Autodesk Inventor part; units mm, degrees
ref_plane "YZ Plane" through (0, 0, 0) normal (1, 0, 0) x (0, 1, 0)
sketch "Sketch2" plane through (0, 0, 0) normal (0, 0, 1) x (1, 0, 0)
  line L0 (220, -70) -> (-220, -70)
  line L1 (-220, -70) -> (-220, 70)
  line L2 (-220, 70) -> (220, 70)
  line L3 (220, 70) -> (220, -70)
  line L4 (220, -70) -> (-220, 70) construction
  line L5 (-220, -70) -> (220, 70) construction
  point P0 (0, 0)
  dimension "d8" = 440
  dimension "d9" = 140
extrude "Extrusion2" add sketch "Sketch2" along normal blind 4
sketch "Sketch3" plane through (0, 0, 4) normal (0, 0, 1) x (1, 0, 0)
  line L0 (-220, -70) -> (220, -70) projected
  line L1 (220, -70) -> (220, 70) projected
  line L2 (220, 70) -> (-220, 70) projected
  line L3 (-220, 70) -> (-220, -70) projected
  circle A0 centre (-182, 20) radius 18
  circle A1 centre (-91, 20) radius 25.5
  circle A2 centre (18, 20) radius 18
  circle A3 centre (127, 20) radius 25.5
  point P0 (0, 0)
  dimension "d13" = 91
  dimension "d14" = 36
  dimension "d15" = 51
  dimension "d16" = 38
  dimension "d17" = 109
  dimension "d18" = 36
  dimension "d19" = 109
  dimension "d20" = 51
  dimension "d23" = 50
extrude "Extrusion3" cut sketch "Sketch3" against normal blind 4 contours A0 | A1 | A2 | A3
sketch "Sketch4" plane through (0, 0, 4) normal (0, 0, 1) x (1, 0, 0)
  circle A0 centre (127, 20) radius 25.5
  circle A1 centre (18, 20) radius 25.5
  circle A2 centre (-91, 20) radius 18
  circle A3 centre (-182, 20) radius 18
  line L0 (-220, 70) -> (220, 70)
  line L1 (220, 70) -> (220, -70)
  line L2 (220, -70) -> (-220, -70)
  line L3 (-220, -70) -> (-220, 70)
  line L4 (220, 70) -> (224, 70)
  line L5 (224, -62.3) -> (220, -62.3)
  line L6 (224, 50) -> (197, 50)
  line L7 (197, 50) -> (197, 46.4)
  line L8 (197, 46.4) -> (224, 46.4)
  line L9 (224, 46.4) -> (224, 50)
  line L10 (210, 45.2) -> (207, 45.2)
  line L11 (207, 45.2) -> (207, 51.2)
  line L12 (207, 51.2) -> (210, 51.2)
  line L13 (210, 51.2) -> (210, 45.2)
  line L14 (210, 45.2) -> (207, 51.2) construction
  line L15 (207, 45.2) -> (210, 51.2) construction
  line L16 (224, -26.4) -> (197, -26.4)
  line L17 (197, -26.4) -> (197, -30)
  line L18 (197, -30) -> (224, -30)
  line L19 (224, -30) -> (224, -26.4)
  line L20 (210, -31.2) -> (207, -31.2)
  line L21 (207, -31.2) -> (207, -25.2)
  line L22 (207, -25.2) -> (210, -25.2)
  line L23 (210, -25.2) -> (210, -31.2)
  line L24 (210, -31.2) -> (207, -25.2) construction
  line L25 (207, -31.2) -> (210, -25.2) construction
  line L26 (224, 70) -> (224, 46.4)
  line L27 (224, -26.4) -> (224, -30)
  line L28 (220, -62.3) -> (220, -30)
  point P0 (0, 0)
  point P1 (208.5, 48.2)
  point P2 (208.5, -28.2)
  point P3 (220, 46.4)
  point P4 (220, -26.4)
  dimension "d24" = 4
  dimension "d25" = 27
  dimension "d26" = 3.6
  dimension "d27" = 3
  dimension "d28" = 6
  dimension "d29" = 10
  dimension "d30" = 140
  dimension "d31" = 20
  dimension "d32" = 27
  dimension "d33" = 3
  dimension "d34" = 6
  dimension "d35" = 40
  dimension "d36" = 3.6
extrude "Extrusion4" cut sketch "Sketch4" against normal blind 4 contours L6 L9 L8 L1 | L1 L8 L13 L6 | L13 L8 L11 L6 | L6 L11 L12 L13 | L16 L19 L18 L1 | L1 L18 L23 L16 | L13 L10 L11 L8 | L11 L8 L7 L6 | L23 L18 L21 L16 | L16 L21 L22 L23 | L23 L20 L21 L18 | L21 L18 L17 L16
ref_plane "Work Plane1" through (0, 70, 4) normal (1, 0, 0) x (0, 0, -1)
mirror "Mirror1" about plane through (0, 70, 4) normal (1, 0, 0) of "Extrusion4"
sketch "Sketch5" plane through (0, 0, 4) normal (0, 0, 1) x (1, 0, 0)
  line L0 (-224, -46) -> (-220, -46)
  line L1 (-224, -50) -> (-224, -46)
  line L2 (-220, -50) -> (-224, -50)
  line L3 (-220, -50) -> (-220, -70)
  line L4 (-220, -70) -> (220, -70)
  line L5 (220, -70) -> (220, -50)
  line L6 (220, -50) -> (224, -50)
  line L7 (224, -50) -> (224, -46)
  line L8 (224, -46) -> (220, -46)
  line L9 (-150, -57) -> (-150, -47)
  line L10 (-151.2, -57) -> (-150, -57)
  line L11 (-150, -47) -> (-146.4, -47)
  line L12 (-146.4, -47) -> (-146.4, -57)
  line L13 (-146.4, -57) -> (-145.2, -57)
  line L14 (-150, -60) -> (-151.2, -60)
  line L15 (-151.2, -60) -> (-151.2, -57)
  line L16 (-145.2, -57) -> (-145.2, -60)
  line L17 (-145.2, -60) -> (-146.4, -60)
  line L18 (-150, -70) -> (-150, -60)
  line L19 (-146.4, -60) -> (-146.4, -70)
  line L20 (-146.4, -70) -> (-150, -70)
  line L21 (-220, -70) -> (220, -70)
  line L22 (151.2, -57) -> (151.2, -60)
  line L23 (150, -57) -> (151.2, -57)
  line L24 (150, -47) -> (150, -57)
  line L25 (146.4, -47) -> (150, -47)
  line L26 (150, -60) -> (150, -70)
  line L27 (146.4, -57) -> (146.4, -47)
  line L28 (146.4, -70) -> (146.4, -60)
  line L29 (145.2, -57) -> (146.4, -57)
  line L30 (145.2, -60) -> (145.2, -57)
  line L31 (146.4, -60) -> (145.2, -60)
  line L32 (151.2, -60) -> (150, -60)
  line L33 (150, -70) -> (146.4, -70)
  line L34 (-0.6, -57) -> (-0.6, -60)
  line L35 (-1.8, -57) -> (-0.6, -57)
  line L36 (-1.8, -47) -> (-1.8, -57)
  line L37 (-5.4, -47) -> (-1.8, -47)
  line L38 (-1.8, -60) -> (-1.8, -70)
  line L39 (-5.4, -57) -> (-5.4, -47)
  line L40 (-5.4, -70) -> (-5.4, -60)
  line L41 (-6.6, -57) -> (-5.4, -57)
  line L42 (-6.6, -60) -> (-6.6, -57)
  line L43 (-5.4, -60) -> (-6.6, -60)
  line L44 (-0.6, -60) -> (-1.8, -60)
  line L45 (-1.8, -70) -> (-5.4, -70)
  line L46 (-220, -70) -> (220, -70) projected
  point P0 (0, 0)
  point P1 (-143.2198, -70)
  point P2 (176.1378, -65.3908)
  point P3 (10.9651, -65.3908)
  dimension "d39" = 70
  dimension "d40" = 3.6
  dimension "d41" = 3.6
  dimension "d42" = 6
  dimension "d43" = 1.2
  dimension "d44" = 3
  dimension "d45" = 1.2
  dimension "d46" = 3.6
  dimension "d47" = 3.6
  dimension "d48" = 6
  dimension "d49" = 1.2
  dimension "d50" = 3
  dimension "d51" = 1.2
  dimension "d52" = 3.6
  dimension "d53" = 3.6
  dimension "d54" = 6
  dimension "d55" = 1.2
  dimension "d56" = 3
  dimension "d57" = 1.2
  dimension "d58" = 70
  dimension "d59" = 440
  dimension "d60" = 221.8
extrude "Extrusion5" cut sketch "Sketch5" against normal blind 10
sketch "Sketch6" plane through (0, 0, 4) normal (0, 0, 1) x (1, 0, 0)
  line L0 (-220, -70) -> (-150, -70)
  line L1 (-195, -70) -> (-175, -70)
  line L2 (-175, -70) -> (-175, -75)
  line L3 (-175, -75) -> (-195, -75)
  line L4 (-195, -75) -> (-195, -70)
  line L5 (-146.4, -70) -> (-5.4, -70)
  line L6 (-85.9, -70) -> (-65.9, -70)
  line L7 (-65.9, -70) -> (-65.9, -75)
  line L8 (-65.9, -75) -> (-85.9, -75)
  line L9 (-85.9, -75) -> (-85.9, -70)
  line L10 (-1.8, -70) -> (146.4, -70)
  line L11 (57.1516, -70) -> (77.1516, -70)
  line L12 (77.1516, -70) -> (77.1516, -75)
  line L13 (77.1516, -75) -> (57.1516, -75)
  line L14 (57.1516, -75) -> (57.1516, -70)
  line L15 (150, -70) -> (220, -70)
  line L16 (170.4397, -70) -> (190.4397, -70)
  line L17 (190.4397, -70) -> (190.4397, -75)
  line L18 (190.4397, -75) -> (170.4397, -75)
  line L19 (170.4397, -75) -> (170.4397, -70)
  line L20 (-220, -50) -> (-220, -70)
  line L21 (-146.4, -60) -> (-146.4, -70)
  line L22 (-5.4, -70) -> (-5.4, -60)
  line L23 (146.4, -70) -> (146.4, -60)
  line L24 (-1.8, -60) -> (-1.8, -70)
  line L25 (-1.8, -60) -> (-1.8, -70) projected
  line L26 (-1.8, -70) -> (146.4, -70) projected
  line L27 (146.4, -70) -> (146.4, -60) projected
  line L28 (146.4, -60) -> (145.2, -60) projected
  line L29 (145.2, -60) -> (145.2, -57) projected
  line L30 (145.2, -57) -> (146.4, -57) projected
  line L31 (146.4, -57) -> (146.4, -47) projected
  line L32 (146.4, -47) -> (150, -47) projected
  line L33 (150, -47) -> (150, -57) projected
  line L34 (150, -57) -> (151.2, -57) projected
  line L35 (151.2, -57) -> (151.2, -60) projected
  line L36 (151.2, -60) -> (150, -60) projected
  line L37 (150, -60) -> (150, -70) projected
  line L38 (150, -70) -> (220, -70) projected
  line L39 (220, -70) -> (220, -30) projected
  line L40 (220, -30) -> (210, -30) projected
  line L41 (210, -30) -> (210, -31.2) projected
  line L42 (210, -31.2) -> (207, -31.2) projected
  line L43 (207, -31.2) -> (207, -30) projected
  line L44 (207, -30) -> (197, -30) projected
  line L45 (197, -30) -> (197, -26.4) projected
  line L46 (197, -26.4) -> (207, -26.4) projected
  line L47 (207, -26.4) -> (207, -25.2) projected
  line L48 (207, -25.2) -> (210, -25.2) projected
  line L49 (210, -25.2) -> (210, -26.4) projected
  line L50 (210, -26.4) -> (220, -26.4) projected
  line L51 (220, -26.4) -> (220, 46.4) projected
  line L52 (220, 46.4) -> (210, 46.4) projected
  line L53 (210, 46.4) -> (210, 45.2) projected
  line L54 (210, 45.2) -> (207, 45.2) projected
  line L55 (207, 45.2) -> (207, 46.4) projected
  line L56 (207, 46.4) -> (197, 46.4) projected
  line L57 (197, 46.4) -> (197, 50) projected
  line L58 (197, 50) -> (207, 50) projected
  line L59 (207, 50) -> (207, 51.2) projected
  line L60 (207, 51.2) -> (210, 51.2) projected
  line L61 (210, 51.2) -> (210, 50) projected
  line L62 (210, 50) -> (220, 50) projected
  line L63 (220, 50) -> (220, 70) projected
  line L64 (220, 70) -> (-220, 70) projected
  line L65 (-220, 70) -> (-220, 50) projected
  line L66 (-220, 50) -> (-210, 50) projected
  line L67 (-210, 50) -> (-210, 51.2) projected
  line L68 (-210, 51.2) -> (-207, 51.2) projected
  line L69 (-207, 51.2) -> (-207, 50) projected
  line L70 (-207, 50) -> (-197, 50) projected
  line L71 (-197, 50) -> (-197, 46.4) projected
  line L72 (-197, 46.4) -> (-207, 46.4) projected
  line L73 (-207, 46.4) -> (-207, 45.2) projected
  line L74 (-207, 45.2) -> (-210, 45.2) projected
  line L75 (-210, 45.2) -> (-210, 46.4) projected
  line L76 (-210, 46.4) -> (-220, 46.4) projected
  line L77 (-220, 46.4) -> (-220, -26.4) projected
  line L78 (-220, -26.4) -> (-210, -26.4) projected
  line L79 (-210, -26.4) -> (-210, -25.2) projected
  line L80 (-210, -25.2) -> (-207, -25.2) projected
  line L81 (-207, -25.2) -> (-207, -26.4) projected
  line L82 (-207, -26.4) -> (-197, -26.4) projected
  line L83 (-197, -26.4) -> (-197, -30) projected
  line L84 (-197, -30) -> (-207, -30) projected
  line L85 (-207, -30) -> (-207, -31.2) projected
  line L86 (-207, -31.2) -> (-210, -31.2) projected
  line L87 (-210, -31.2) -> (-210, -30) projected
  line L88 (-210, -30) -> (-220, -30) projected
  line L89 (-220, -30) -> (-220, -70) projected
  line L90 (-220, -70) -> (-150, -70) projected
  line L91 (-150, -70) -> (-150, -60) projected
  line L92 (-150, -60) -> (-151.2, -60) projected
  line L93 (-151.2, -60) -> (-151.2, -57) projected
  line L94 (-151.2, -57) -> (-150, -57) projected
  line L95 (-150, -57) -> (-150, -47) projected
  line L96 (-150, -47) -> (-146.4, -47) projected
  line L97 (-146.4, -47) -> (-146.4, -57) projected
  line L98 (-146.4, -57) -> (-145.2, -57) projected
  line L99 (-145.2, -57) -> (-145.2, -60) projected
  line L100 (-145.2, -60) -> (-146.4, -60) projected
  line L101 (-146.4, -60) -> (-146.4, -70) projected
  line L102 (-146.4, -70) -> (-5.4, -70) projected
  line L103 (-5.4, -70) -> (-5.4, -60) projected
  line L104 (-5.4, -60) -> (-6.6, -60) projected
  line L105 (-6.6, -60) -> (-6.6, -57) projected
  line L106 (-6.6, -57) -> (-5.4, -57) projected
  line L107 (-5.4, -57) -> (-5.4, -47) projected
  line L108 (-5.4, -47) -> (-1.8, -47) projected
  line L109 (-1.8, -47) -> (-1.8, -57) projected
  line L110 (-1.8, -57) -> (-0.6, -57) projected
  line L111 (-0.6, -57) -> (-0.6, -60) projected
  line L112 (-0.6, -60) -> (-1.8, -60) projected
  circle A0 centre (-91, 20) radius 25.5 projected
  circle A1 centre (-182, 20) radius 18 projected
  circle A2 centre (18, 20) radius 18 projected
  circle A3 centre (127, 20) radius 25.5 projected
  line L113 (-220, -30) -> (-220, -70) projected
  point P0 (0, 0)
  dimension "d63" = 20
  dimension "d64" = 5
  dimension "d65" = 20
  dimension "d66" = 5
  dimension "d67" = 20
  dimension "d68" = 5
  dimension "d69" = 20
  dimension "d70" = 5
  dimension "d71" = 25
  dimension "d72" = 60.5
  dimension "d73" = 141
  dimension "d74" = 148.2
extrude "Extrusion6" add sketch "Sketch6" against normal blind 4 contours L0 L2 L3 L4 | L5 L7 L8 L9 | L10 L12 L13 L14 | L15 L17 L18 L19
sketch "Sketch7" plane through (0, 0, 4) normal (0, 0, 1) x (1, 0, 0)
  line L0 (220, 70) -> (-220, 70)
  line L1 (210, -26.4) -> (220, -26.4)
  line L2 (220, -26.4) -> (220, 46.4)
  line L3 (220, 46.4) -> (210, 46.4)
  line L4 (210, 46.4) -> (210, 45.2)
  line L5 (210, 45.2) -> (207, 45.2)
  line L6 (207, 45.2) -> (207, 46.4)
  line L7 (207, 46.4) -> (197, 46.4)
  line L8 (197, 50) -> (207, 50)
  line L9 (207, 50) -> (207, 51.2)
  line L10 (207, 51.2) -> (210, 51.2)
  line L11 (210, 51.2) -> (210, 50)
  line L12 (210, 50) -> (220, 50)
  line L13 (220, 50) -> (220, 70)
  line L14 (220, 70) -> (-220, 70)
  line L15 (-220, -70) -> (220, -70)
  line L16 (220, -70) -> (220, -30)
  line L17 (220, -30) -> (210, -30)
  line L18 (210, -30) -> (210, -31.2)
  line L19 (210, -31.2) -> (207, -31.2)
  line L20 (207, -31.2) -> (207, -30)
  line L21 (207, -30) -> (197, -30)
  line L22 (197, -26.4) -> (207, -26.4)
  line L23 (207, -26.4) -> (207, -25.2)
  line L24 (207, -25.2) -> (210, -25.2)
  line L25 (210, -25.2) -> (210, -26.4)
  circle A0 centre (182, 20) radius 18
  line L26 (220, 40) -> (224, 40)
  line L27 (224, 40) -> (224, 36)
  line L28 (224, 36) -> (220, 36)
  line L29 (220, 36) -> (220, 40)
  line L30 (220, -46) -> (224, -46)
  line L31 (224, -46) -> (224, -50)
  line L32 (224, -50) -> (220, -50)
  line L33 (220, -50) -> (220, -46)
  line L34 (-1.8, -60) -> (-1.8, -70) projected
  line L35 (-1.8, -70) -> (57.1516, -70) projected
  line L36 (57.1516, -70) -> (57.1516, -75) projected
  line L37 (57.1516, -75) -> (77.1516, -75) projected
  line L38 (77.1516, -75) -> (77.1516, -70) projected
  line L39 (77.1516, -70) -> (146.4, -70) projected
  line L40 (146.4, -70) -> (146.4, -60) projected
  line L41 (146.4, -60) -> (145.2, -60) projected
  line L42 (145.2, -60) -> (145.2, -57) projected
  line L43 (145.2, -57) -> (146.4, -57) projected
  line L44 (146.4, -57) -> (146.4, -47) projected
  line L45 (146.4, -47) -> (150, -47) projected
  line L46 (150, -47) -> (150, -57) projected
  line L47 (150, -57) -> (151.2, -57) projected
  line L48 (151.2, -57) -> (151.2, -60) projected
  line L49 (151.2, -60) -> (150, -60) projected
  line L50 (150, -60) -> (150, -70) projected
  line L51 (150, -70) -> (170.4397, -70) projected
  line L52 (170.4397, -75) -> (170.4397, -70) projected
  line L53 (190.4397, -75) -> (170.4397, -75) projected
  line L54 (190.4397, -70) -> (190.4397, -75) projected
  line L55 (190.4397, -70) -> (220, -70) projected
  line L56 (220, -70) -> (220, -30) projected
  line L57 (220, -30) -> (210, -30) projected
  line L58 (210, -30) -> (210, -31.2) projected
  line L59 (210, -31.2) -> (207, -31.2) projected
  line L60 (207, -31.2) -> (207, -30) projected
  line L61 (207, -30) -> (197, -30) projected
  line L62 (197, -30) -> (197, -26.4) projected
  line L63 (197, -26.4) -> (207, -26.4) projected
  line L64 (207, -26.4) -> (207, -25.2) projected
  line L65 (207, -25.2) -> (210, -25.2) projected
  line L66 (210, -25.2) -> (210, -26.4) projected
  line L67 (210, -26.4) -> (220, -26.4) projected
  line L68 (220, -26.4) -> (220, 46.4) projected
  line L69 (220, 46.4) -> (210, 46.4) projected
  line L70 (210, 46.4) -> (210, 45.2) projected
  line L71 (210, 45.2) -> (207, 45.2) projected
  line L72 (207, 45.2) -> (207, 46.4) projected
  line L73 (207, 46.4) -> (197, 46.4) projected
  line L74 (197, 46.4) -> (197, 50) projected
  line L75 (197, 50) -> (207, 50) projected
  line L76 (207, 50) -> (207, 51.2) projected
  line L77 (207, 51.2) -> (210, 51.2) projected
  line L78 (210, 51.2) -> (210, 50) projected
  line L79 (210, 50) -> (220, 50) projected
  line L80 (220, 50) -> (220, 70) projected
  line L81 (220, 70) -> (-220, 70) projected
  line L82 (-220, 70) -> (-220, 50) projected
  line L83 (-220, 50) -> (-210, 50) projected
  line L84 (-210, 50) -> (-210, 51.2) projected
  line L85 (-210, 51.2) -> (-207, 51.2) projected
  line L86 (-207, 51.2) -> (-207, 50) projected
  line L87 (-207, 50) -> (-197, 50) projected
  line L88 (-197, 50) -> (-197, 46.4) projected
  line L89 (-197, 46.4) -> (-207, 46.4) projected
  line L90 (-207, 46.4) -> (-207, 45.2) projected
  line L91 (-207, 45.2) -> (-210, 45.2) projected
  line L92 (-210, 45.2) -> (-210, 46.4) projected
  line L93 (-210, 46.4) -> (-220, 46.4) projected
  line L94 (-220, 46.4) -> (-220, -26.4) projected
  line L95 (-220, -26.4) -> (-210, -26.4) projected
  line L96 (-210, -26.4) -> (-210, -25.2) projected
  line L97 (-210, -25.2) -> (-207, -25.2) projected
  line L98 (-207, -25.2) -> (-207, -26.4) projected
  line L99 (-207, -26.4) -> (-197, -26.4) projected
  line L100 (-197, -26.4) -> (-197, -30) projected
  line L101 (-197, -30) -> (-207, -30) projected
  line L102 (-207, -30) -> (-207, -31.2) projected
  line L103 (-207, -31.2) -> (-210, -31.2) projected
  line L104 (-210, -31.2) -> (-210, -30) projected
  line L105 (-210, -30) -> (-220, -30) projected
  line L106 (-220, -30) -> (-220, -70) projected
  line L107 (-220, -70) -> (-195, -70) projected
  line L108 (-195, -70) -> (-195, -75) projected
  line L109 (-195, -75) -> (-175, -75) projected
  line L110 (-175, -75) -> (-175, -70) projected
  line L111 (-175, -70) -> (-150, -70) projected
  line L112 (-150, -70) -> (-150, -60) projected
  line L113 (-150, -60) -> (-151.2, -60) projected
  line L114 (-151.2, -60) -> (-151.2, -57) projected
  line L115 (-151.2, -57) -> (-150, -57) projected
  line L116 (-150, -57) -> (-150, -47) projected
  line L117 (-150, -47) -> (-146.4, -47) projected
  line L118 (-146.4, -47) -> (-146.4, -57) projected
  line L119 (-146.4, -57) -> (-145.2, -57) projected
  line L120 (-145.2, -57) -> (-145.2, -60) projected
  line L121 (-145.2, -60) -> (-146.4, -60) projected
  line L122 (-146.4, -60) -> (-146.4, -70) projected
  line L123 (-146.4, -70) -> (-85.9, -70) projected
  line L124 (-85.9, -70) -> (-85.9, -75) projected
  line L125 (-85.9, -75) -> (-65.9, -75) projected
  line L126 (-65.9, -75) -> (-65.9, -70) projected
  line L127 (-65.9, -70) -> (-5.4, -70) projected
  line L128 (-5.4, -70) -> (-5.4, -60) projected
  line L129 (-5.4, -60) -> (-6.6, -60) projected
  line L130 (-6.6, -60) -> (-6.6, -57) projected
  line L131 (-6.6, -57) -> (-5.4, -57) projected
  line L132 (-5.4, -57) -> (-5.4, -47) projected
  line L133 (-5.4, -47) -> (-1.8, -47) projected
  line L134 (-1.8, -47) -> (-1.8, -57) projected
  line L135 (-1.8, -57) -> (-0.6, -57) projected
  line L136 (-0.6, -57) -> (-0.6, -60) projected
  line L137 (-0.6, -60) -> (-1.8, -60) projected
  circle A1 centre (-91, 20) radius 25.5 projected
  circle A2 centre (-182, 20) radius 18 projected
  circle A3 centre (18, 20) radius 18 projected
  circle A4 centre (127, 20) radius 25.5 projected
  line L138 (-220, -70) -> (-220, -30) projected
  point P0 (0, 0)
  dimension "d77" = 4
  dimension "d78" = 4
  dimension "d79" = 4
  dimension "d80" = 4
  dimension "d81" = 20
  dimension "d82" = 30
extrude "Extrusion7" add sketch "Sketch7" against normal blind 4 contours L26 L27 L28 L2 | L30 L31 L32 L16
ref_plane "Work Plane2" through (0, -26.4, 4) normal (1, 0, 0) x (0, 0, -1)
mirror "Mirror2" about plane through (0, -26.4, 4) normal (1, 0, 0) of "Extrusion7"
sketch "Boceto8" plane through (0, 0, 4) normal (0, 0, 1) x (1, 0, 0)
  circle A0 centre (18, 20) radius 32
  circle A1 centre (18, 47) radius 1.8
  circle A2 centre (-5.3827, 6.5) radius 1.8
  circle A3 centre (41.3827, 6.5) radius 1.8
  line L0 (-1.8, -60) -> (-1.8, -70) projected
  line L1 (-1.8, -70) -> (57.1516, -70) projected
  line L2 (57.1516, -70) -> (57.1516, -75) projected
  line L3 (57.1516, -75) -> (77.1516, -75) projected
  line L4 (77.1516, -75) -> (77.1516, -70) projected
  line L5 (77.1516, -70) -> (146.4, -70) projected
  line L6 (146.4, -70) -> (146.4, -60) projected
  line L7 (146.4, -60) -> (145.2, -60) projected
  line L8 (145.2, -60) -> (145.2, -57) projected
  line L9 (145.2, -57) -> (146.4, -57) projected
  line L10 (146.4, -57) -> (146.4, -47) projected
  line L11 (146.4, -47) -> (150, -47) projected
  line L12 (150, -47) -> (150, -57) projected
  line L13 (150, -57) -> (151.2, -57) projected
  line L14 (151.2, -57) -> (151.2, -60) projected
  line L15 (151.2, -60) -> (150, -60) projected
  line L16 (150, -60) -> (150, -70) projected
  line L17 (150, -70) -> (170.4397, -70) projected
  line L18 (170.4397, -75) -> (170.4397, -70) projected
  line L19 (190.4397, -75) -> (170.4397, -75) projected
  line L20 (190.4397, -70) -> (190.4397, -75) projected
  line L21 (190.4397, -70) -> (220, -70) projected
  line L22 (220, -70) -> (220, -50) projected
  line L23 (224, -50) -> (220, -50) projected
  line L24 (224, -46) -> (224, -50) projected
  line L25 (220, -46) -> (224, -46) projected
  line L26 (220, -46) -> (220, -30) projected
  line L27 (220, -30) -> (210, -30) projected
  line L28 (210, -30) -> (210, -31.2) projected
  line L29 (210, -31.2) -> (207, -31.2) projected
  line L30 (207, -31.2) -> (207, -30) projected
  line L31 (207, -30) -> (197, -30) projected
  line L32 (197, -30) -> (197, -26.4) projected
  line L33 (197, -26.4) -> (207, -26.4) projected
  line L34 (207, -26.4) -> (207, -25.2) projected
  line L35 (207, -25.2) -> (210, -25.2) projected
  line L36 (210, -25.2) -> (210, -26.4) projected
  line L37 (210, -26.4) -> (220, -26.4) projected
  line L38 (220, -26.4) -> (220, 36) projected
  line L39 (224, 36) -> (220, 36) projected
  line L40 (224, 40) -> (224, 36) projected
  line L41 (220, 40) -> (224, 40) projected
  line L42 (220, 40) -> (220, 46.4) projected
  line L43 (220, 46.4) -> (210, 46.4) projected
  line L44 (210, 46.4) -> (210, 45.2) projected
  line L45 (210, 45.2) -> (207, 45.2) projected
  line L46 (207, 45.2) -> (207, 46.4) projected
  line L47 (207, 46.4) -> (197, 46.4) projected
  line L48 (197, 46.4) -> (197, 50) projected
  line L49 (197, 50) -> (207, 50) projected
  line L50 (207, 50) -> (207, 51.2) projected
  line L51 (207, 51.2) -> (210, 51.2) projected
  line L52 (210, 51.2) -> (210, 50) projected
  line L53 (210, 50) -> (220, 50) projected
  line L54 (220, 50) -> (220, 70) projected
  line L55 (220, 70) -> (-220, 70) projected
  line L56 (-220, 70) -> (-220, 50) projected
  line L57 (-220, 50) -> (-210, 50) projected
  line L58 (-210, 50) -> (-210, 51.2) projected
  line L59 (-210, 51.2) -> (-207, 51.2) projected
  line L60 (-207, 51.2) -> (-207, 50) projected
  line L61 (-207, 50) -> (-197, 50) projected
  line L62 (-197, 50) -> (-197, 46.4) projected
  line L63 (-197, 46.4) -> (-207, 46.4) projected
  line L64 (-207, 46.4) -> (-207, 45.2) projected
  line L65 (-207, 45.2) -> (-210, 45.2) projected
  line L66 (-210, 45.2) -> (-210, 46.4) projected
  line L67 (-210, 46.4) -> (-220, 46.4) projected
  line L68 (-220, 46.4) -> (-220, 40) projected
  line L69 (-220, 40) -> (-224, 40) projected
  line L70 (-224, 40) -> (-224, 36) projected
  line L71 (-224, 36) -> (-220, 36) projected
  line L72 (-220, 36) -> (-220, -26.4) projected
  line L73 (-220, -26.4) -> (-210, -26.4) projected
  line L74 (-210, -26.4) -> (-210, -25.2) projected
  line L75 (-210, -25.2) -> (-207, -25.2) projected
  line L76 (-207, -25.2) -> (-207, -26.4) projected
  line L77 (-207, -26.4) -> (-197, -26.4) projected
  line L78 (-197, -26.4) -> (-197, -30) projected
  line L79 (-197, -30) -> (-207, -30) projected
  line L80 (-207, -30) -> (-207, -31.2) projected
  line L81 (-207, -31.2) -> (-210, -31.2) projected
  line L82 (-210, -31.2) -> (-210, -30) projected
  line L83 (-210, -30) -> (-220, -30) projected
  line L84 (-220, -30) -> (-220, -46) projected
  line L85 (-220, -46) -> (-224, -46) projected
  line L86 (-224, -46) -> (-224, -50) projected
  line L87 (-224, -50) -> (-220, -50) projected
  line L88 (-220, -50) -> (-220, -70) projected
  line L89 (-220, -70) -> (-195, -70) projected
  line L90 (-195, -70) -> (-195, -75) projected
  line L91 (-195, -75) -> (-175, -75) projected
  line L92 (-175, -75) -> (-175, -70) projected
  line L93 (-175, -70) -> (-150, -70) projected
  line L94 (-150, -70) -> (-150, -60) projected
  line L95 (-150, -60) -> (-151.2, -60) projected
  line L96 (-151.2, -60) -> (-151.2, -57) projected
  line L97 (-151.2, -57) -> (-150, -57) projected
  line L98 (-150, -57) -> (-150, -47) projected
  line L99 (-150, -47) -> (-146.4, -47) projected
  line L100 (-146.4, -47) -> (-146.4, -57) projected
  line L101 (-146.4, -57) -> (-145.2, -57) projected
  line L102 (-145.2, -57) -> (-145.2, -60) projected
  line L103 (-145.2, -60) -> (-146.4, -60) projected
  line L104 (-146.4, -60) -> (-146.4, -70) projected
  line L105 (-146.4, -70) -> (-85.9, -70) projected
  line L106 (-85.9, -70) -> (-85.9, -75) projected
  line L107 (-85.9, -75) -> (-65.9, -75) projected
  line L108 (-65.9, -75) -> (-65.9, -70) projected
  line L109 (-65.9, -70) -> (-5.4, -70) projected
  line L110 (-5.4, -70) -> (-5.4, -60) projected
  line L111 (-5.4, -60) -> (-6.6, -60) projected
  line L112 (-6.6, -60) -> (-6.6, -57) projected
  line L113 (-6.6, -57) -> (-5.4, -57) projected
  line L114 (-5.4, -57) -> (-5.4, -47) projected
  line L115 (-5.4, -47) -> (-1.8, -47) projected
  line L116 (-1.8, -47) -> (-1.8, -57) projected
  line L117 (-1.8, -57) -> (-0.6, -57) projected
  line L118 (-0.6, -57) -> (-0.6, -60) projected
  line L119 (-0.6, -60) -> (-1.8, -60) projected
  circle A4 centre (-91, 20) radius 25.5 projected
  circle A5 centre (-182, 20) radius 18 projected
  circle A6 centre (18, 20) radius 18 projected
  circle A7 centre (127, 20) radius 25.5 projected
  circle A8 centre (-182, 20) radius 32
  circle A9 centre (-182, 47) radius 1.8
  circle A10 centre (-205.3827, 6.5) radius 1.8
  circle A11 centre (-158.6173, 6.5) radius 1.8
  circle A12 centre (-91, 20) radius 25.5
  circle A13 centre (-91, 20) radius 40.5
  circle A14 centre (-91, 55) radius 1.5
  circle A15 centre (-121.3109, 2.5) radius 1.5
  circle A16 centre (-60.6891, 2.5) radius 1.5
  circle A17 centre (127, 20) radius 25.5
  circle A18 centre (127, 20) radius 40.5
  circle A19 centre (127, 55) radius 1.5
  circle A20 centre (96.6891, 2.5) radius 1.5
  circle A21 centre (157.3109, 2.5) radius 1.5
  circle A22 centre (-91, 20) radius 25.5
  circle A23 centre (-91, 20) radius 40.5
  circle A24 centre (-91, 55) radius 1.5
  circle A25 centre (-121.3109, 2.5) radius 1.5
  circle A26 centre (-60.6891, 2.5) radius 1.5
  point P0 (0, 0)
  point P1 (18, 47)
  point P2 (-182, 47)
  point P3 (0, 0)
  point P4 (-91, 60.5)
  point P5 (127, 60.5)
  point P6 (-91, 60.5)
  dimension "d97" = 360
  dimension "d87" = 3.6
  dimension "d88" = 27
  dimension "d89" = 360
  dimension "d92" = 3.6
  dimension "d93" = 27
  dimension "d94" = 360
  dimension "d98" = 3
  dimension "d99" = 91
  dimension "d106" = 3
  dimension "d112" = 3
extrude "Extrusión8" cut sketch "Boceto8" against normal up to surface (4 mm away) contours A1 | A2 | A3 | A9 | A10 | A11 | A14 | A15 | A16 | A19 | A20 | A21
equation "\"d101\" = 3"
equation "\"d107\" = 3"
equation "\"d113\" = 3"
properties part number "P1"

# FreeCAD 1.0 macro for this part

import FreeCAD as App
import Part
import Sketcher
from FreeCAD import Vector
Q = App.Units.Quantity


def add_polygon(sketch, points):
    """Adds a closed chain of lines whose ends are joined by coincident constraints."""
    first, n = sketch.GeometryCount, len(points)
    for a, b in zip(points, points[1:] + points[:1]):
        sketch.addGeometry(Part.LineSegment(App.Vector(*a, 0), App.Vector(*b, 0)), False)
    for i in range(n):
        sketch.addConstraint(Sketcher.Constraint("Coincident", first + i, 2, first + (i + 1) % n, 1))

doc = App.newDocument("Part")
params = doc.addObject("Spreadsheet::Sheet", "Params")
for row, (alias, value) in enumerate([
    ("sketch1_width", "440 mm"),
    ("sketch1_height", "140 mm"),
    ("pad1_length", "4 mm"),
    ("sketch2_diameter", "36 mm"),
    ("sketch2_diameter2", "51 mm"),
    ("pocket1_length", "4 mm"),
    ("sketch3_width", "3 mm"),
    ("sketch3_width2", "10 mm"),
    ("sketch3_height", "3.6 mm"),
    ("sketch3_width3", "14 mm"),
    ("pocket2_length", "4 mm"),
    ("sketch4_height", "3 mm"),
    ("sketch4_width", "3.6 mm"),
    ("sketch4_width2", "1.2 mm"),
    ("sketch4_height2", "10 mm"),
    ("pocket3_length", "10 mm"),
    ("sketch5_width", "20 mm"),
    ("sketch5_height", "5 mm"),
    ("pad2_length", "4 mm"),
    ("sketch6_width", "4 mm"),
    ("pad3_length", "4 mm"),
    ("sketch7_diameter", "3 mm"),
    ("sketch7_diameter2", "3.6 mm"),
    ("pocket4_length", "4 mm"),
], start=1):
    params.set(f"A{row}", alias)
    params.set(f"B{row}", "=" + value)
    params.setAlias(f"B{row}", alias)

body = doc.addObject("PartDesign::Body", "Body")

sketch1 = body.newObject("Sketcher::SketchObject", "Sketch")
sketch1.AttachmentSupport = (doc.getObject("XY_Plane"), [""])
sketch1.MapMode = "FlatFace"
add_polygon(sketch1, [(-220, -70), (220, -70), (220, 70), (-220, 70)])
sketch1.addConstraint([
    Sketcher.Constraint("Horizontal", 0),
    Sketcher.Constraint("Vertical", 1),
    Sketcher.Constraint("Horizontal", 2),
    Sketcher.Constraint("Vertical", 3),
    Sketcher.Constraint("Symmetric", 0, 2, 2, 2, -1, 1),
    Sketcher.Constraint("DistanceX", 0, 1, 0, 2, Q("440 mm")),
    Sketcher.Constraint("DistanceY", 1, 1, 1, 2, Q("140 mm")),
])
sketch1.setExpression("Constraints[9]", "Params.sketch1_width")
sketch1.setExpression("Constraints[10]", "Params.sketch1_height")
pad1 = body.newObject("PartDesign::Pad", "Pad")
pad1.Profile = sketch1
pad1.setExpression("Length", "Params.pad1_length")

sketch2 = body.newObject("Sketcher::SketchObject", "Sketch001")
sketch2.AttachmentSupport = (doc.getObject("XY_Plane"), [""])
sketch2.MapMode = "FlatFace"
sketch2.AttachmentOffset = App.Placement(Vector(0, 0, 4), App.Rotation())
sketch2.addGeometry([
    Part.Circle(Vector(-182, 20, 0), Vector(0, 0, 1), 18),
    Part.Circle(Vector(-91, 20, 0), Vector(0, 0, 1), 26),
    Part.Circle(Vector(18, 20, 0), Vector(0, 0, 1), 18),
    Part.Circle(Vector(127, 20, 0), Vector(0, 0, 1), 26),
], False)
sketch2.addConstraint([
    Sketcher.Constraint("Equal", 0, 2),
    Sketcher.Constraint("Equal", 1, 3),
    Sketcher.Constraint("Horizontal", 0, 3, 1, 3),
    Sketcher.Constraint("Horizontal", 1, 3, 2, 3),
    Sketcher.Constraint("Horizontal", 2, 3, 3, 3),
    Sketcher.Constraint("Diameter", 0, Q("36 mm")),
    Sketcher.Constraint("Diameter", 1, Q("51 mm")),
    Sketcher.Constraint("DistanceX", 1, 3, -1, 1, Q("91 mm")),
    Sketcher.Constraint("DistanceX", 0, 3, 1, 3, Q("91 mm")),
    Sketcher.Constraint("DistanceX", 1, 3, 2, 3, Q("109 mm")),
    Sketcher.Constraint("DistanceX", 2, 3, 3, 3, Q("109 mm")),
    Sketcher.Constraint("DistanceY", -1, 1, 0, 3, Q("20 mm")),
])
sketch2.setExpression("Constraints[5]", "Params.sketch2_diameter")
sketch2.setExpression("Constraints[6]", "Params.sketch2_diameter2")
pocket1 = body.newObject("PartDesign::Pocket", "Pocket")
pocket1.Profile = sketch2
pocket1.setExpression("Length", "Params.pocket1_length")

sketch3 = body.newObject("Sketcher::SketchObject", "Sketch002")
sketch3.AttachmentSupport = (doc.getObject("XY_Plane"), [""])
sketch3.MapMode = "FlatFace"
sketch3.AttachmentOffset = App.Placement(Vector(0, 0, 4), App.Rotation())
add_polygon(sketch3, [(224, 50), (210, 50), (210, 51.2), (207, 51.2), (207, 50), (197, 50), (197, 46.4), (207, 46.4), (207, 45.2), (210, 45.2), (210, 46.4), (224, 46.4)])
add_polygon(sketch3, [(224, -26.4), (210, -26.4), (210, -25.2), (207, -25.2), (207, -26.4), (197, -26.4), (197, -30), (207, -30), (207, -31.2), (210, -31.2), (210, -30), (224, -30)])
sketch3.addConstraint([
    Sketcher.Constraint("Horizontal", 0),
    Sketcher.Constraint("Vertical", 1),
    Sketcher.Constraint("Horizontal", 2),
    Sketcher.Constraint("Vertical", 3),
    Sketcher.Constraint("Horizontal", 4),
    Sketcher.Constraint("Vertical", 5),
    Sketcher.Constraint("Horizontal", 6),
    Sketcher.Constraint("Vertical", 7),
    Sketcher.Constraint("Horizontal", 8),
    Sketcher.Constraint("Vertical", 9),
    Sketcher.Constraint("Horizontal", 10),
    Sketcher.Constraint("Vertical", 11),
    Sketcher.Constraint("Horizontal", 12),
    Sketcher.Constraint("Vertical", 13),
    Sketcher.Constraint("Horizontal", 14),
    Sketcher.Constraint("Vertical", 15),
    Sketcher.Constraint("Horizontal", 16),
    Sketcher.Constraint("Vertical", 17),
    Sketcher.Constraint("Horizontal", 18),
    Sketcher.Constraint("Vertical", 19),
    Sketcher.Constraint("Horizontal", 20),
    Sketcher.Constraint("Vertical", 21),
    Sketcher.Constraint("Horizontal", 22),
    Sketcher.Constraint("Vertical", 23),
    Sketcher.Constraint("Horizontal", 0, 2, 3, 2),
    Sketcher.Constraint("Horizontal", 6, 2, 9, 2),
    Sketcher.Constraint("Horizontal", 12, 2, 15, 2),
    Sketcher.Constraint("Horizontal", 18, 2, 21, 2),
    Sketcher.Constraint("Vertical", 3, 2, 6, 2),
    Sketcher.Constraint("Vertical", 1, 2, 8, 2),
    Sketcher.Constraint("Vertical", 9, 2, 12, 2),
    Sketcher.Constraint("Vertical", 7, 2, 14, 2),
    Sketcher.Constraint("Vertical", 5, 2, 16, 2),
    Sketcher.Constraint("Vertical", 15, 2, 18, 2),
    Sketcher.Constraint("Vertical", 13, 2, 20, 2),
    Sketcher.Constraint("Vertical", 11, 2, 22, 2),
    Sketcher.Constraint("Equal", 3, 7),
    Sketcher.Constraint("Equal", 9, 13),
    Sketcher.Constraint("Equal", 11, 17),
    Sketcher.Constraint("Equal", 15, 19),
    Sketcher.Constraint("DistanceX", 2, 2, 2, 1, Q("3 mm")),
    Sketcher.Constraint("DistanceX", 4, 2, 4, 1, Q("10 mm")),
    Sketcher.Constraint("DistanceY", 5, 2, 5, 1, Q("3.6 mm")),
    Sketcher.Constraint("DistanceY", 7, 2, 2, 2, Q("6 mm")),
    Sketcher.Constraint("DistanceX", 0, 2, 0, 1, Q("14 mm")),
    Sketcher.Constraint("DistanceX", -1, 1, 0, 2, Q("210 mm")),
    Sketcher.Constraint("DistanceY", -1, 1, 0, 2, Q("50 mm")),
    Sketcher.Constraint("DistanceY", 17, 2, -1, 1, Q("30 mm")),
])
sketch3.setExpression("Constraints[64]", "Params.sketch3_width")
sketch3.setExpression("Constraints[65]", "Params.sketch3_width2")
sketch3.setExpression("Constraints[66]", "Params.sketch3_height")
sketch3.setExpression("Constraints[68]", "Params.sketch3_width3")
pocket2 = body.newObject("PartDesign::Pocket", "Pocket001")
pocket2.Profile = sketch3
pocket2.setExpression("Length", "Params.pocket2_length")
doc.recompute()

mirrored = body.newObject("PartDesign::Mirrored", "Mirrored")
mirrored.Originals = [pocket2]
mirrored.MirrorPlane = (doc.getObject("YZ_Plane"), [""])
body.Tip = mirrored

sketch4 = body.newObject("Sketcher::SketchObject", "Sketch003")
sketch4.AttachmentSupport = (doc.getObject("XY_Plane"), [""])
sketch4.MapMode = "FlatFace"
sketch4.AttachmentOffset = App.Placement(Vector(0, 0, 4), App.Rotation())
add_polygon(sketch4, [(-150, -60), (-150, -70), (-146.4, -70), (-146.4, -60), (-145.2, -60), (-145.2, -57), (-146.4, -57), (-146.4, -47), (-150, -47), (-150, -57), (-151.2, -57), (-151.2, -60)])
add_polygon(sketch4, [(146.4, -60), (146.4, -70), (150, -70), (150, -60), (151.2, -60), (151.2, -57), (150, -57), (150, -47), (146.4, -47), (146.4, -57), (145.2, -57), (145.2, -60)])
add_polygon(sketch4, [(-5.4, -60), (-5.4, -70), (-1.8, -70), (-1.8, -60), (-0.6, -60), (-0.6, -57), (-1.8, -57), (-1.8, -47), (-5.4, -47), (-5.4, -57), (-6.6, -57), (-6.6, -60)])
sketch4.addConstraint([
    Sketcher.Constraint("Vertical", 0),
    Sketcher.Constraint("Horizontal", 1),
    Sketcher.Constraint("Vertical", 2),
    Sketcher.Constraint("Horizontal", 3),
    Sketcher.Constraint("Vertical", 4),
    Sketcher.Constraint("Horizontal", 5),
    Sketcher.Constraint("Vertical", 6),
    Sketcher.Constraint("Horizontal", 7),
    Sketcher.Constraint("Vertical", 8),
    Sketcher.Constraint("Horizontal", 9),
    Sketcher.Constraint("Vertical", 10),
    Sketcher.Constraint("Horizontal", 11),
    Sketcher.Constraint("Vertical", 12),
    Sketcher.Constraint("Horizontal", 13),
    Sketcher.Constraint("Vertical", 14),
    Sketcher.Constraint("Horizontal", 15),
    Sketcher.Constraint("Vertical", 16),
    Sketcher.Constraint("Horizontal", 17),
    Sketcher.Constraint("Vertical", 18),
    Sketcher.Constraint("Horizontal", 19),
    Sketcher.Constraint("Vertical", 20),
    Sketcher.Constraint("Horizontal", 21),
    Sketcher.Constraint("Vertical", 22),
    Sketcher.Constraint("Horizontal", 23),
    Sketcher.Constraint("Vertical", 24),
    Sketcher.Constraint("Horizontal", 25),
    Sketcher.Constraint("Vertical", 26),
    Sketcher.Constraint("Horizontal", 27),
    Sketcher.Constraint("Vertical", 28),
    Sketcher.Constraint("Horizontal", 29),
    Sketcher.Constraint("Vertical", 30),
    Sketcher.Constraint("Horizontal", 31),
    Sketcher.Constraint("Vertical", 32),
    Sketcher.Constraint("Horizontal", 33),
    Sketcher.Constraint("Vertical", 34),
    Sketcher.Constraint("Horizontal", 35),
    Sketcher.Constraint("Symmetric", 1, 2, 12, 2, -2),
    Sketcher.Constraint("Symmetric", 11, 2, 14, 2, -2),
    Sketcher.Constraint("Symmetric", 9, 2, 16, 2, -2),
    Sketcher.Constraint("Symmetric", 7, 2, 18, 2, -2),
    Sketcher.Constraint("Symmetric", 5, 2, 20, 2, -2),
    Sketcher.Constraint("Symmetric", 3, 2, 22, 2, -2),
    Sketcher.Constraint("Horizontal", 5, 2, 8, 2),
    Sketcher.Constraint("Horizontal", 3, 2, 10, 2),
    Sketcher.Constraint("Horizontal", 13, 2, 24, 2),
    Sketcher.Constraint("Horizontal", 23, 2, 26, 2),
    Sketcher.Constraint("Horizontal", 21, 2, 28, 2),
    Sketcher.Constraint("Horizontal", 19, 2, 30, 2),
    Sketcher.Constraint("Horizontal", 29, 2, 32, 2),
    Sketcher.Constraint("Horizontal", 27, 2, 34, 2),
    Sketcher.Constraint("Vertical", 2, 2, 5, 2),
    Sketcher.Constraint("Vertical", 0, 2, 7, 2),
    Sketcher.Constraint("Vertical", 26, 2, 29, 2),
    Sketcher.Constraint("Vertical", 24, 2, 31, 2),
    Sketcher.Constraint("Equal", 5, 9),
    Sketcher.Constraint("Equal", 19, 25),
    Sketcher.Constraint("Equal", 23, 27),
    Sketcher.Constraint("Equal", 29, 33),
    Sketcher.Constraint("Equal", 2, 6),
    Sketcher.Constraint("DistanceY", 4, 1, 4, 2, Q("3 mm")),
    Sketcher.Constraint("DistanceX", 1, 1, 1, 2, Q("3.6 mm")),
    Sketcher.Constraint("DistanceX", 3, 1, 3, 2, Q("1.2 mm")),
    Sketcher.Constraint("DistanceY", 0, 2, -1, 1, Q("70 mm")),
    Sketcher.Constraint("DistanceY", 0, 2, 0, 1, Q("10 mm")),
    Sketcher.Constraint("DistanceX", 0, 2, -1, 1, Q("150 mm")),
    Sketcher.Constraint("DistanceX", 1, 2, 24, 2, Q("141 mm")),
])
sketch4.setExpression("Constraints[95]", "Params.sketch4_height")
sketch4.setExpression("Constraints[96]", "Params.sketch4_width")
sketch4.setExpression("Constraints[97]", "Params.sketch4_width2")
sketch4.setExpression("Constraints[99]", "Params.sketch4_height2")
pocket3 = body.newObject("PartDesign::Pocket", "Pocket002")
pocket3.Profile = sketch4
pocket3.setExpression("Length", "Params.pocket3_length")

sketch5 = body.newObject("Sketcher::SketchObject", "Sketch004")
sketch5.AttachmentSupport = (doc.getObject("XY_Plane"), [""])
sketch5.MapMode = "FlatFace"
sketch5.AttachmentOffset = App.Placement(Vector(0, 0, 4), App.Rotation())
add_polygon(sketch5, [(-175, -70), (-195, -70), (-195, -75), (-175, -75)])
add_polygon(sketch5, [(-66, -70), (-86, -70), (-86, -75), (-66, -75)])
add_polygon(sketch5, [(77, -70), (57, -70), (57, -75), (77, -75)])
add_polygon(sketch5, [(190, -70), (170, -70), (170, -75), (190, -75)])
sketch5.addConstraint([
    Sketcher.Constraint("Horizontal", 0),
    Sketcher.Constraint("Vertical", 1),
    Sketcher.Constraint("Horizontal", 2),
    Sketcher.Constraint("Vertical", 3),
    Sketcher.Constraint("Horizontal", 4),
    Sketcher.Constraint("Vertical", 5),
    Sketcher.Constraint("Horizontal", 6),
    Sketcher.Constraint("Vertical", 7),
    Sketcher.Constraint("Horizontal", 8),
    Sketcher.Constraint("Vertical", 9),
    Sketcher.Constraint("Horizontal", 10),
    Sketcher.Constraint("Vertical", 11),
    Sketcher.Constraint("Horizontal", 12),
    Sketcher.Constraint("Vertical", 13),
    Sketcher.Constraint("Horizontal", 14),
    Sketcher.Constraint("Vertical", 15),
    Sketcher.Constraint("Horizontal", 3, 2, 4, 2),
    Sketcher.Constraint("Horizontal", 2, 2, 5, 2),
    Sketcher.Constraint("Horizontal", 7, 2, 8, 2),
    Sketcher.Constraint("Horizontal", 6, 2, 9, 2),
    Sketcher.Constraint("Horizontal", 11, 2, 12, 2),
    Sketcher.Constraint("Horizontal", 10, 2, 13, 2),
    Sketcher.Constraint("Equal", 2, 4),
    Sketcher.Constraint("Equal", 6, 8),
    Sketcher.Constraint("Equal", 10, 12),
    Sketcher.Constraint("DistanceX", 0, 2, 0, 1, Q("20 mm")),
    Sketcher.Constraint("DistanceY", 1, 2, 1, 1, Q("5 mm")),
    Sketcher.Constraint("DistanceX", 0, 2, -1, 1, Q("195 mm")),
    Sketcher.Constraint("DistanceY", 0, 2, -1, 1, Q("70 mm")),
    Sketcher.Constraint("DistanceX", 4, 2, -1, 1, Q("85.9 mm")),
    Sketcher.Constraint("DistanceX", 11, 2, 12, 2, Q("93.288 mm")),
    Sketcher.Constraint("DistanceX", -1, 1, 8, 2, Q("57.1516 mm")),
])
sketch5.setExpression("Constraints[41]", "Params.sketch5_width")
sketch5.setExpression("Constraints[42]", "Params.sketch5_height")
pad2 = body.newObject("PartDesign::Pad", "Pad001")
pad2.Profile = sketch5
pad2.setExpression("Length", "Params.pad2_length")
pad2.Reversed = True

sketch6 = body.newObject("Sketcher::SketchObject", "Sketch005")
sketch6.AttachmentSupport = (doc.getObject("XY_Plane"), [""])
sketch6.MapMode = "FlatFace"
sketch6.AttachmentOffset = App.Placement(Vector(0, 0, 4), App.Rotation())
add_polygon(sketch6, [(224, 40), (220, 40), (220, 36), (224, 36)])
add_polygon(sketch6, [(224, -46), (220, -46), (220, -50), (224, -50)])
sketch6.addConstraint([
    Sketcher.Constraint("Horizontal", 0),
    Sketcher.Constraint("Vertical", 1),
    Sketcher.Constraint("Horizontal", 2),
    Sketcher.Constraint("Vertical", 3),
    Sketcher.Constraint("Horizontal", 4),
    Sketcher.Constraint("Vertical", 5),
    Sketcher.Constraint("Horizontal", 6),
    Sketcher.Constraint("Vertical", 7),
    Sketcher.Constraint("Vertical", 1, 2, 4, 2),
    Sketcher.Constraint("Vertical", 3, 2, 6, 2),
    Sketcher.Constraint("Equal", 6, 1),
    Sketcher.Constraint("Equal", 3, 5),
    Sketcher.Constraint("DistanceX", 0, 2, 0, 1, Q("4 mm")),
    Sketcher.Constraint("DistanceX", -1, 1, 0, 2, Q("220 mm")),
    Sketcher.Constraint("DistanceY", -1, 1, 0, 2, Q("40 mm")),
    Sketcher.Constraint("DistanceY", 4, 2, -1, 1, Q("46 mm")),
])
sketch6.setExpression("Constraints[20]", "Params.sketch6_width")
pad3 = body.newObject("PartDesign::Pad", "Pad002")
pad3.Profile = sketch6
pad3.setExpression("Length", "Params.pad3_length")
pad3.Reversed = True
doc.recompute()

mirrored2 = body.newObject("PartDesign::Mirrored", "Mirrored001")
mirrored2.Originals = [pad3]
mirrored2.MirrorPlane = (doc.getObject("YZ_Plane"), [""])
body.Tip = mirrored2

sketch7 = body.newObject("Sketcher::SketchObject", "Sketch006")
sketch7.AttachmentSupport = (doc.getObject("XY_Plane"), [""])
sketch7.MapMode = "FlatFace"
sketch7.AttachmentOffset = App.Placement(Vector(0, 0, 4), App.Rotation())
sketch7.addGeometry([
    Part.Circle(Vector(18, 47, 0), Vector(0, 0, 1), 1.8),
    Part.Circle(Vector(-5.4, 6.5, 0), Vector(0, 0, 1), 1.8),
    Part.Circle(Vector(41.4, 6.5, 0), Vector(0, 0, 1), 1.8),
    Part.Circle(Vector(-182, 47, 0), Vector(0, 0, 1), 1.8),
    Part.Circle(Vector(-205.4, 6.5, 0), Vector(0, 0, 1), 1.8),
    Part.Circle(Vector(-158.6, 6.5, 0), Vector(0, 0, 1), 1.8),
    Part.Circle(Vector(-91, 55, 0), Vector(0, 0, 1), 1.5),
    Part.Circle(Vector(-121.3, 2.5, 0), Vector(0, 0, 1), 1.5),
    Part.Circle(Vector(-60.7, 2.5, 0), Vector(0, 0, 1), 1.5),
    Part.Circle(Vector(127, 55, 0), Vector(0, 0, 1), 1.5),
    Part.Circle(Vector(96.7, 2.5, 0), Vector(0, 0, 1), 1.5),
    Part.Circle(Vector(157.3, 2.5, 0), Vector(0, 0, 1), 1.5),
], False)
sketch7.addConstraint([
    Sketcher.Constraint("Equal", 0, 1),
    Sketcher.Constraint("Equal", 1, 2),
    Sketcher.Constraint("Equal", 2, 3),
    Sketcher.Constraint("Equal", 3, 4),
    Sketcher.Constraint("Equal", 4, 5),
    Sketcher.Constraint("Equal", 6, 7),
    Sketcher.Constraint("Equal", 7, 8),
    Sketcher.Constraint("Equal", 8, 9),
    Sketcher.Constraint("Equal", 9, 10),
    Sketcher.Constraint("Equal", 10, 11),
    Sketcher.Constraint("Horizontal", 1, 3, 2, 3),
    Sketcher.Constraint("Horizontal", 0, 3, 3, 3),
    Sketcher.Constraint("Horizontal", 2, 3, 4, 3),
    Sketcher.Constraint("Horizontal", 4, 3, 5, 3),
    Sketcher.Constraint("Horizontal", 7, 3, 8, 3),
    Sketcher.Constraint("Horizontal", 6, 3, 9, 3),
    Sketcher.Constraint("Horizontal", 8, 3, 10, 3),
    Sketcher.Constraint("Horizontal", 10, 3, 11, 3),
    Sketcher.Constraint("Diameter", 6, Q("3 mm")),
    Sketcher.Constraint("Diameter", 0, Q("3.6 mm")),
    Sketcher.Constraint("DistanceX", 6, 3, -1, 1, Q("91 mm")),
    Sketcher.Constraint("DistanceX", 3, 3, 6, 3, Q("91 mm")),
    Sketcher.Constraint("DistanceX", -1, 1, 0, 3, Q("18 mm")),
    Sketcher.Constraint("DistanceY", -1, 1, 0, 3, Q("47 mm")),
    Sketcher.Constraint("DistanceY", -1, 1, 6, 3, Q("55 mm")),
    Sketcher.Constraint("DistanceX", -1, 1, 9, 3, Q("127 mm")),
    Sketcher.Constraint("DistanceX", 4, 3, 1, 3, Q("200 mm")),
    Sketcher.Constraint("DistanceX", 5, 3, 2, 3, Q("200 mm")),
    Sketcher.Constraint("DistanceY", 7, 3, 5, 3, Q("4 mm")),
    Sketcher.Constraint("DistanceY", -1, 1, 1, 3, Q("6.5 mm")),
    Sketcher.Constraint("DistanceX", 7, 3, -1, 1, Q("121.311 mm")),
    Sketcher.Constraint("DistanceX", 8, 3, -1, 1, Q("60.689 mm")),
    Sketcher.Constraint("DistanceX", -1, 1, 10, 3, Q("96.689 mm")),
    Sketcher.Constraint("DistanceX", -1, 1, 11, 3, Q("157.311 mm")),
    Sketcher.Constraint("DistanceX", 1, 3, -1, 1, Q("5.3827 mm")),
    Sketcher.Constraint("DistanceX", -1, 1, 2, 3, Q("41.3827 mm")),
])
sketch7.setExpression("Constraints[18]", "Params.sketch7_diameter")
sketch7.setExpression("Constraints[19]", "Params.sketch7_diameter2")
pocket4 = body.newObject("PartDesign::Pocket", "Pocket003")
pocket4.Profile = sketch7
pocket4.setExpression("Length", "Params.pocket4_length")

doc.recompute()
